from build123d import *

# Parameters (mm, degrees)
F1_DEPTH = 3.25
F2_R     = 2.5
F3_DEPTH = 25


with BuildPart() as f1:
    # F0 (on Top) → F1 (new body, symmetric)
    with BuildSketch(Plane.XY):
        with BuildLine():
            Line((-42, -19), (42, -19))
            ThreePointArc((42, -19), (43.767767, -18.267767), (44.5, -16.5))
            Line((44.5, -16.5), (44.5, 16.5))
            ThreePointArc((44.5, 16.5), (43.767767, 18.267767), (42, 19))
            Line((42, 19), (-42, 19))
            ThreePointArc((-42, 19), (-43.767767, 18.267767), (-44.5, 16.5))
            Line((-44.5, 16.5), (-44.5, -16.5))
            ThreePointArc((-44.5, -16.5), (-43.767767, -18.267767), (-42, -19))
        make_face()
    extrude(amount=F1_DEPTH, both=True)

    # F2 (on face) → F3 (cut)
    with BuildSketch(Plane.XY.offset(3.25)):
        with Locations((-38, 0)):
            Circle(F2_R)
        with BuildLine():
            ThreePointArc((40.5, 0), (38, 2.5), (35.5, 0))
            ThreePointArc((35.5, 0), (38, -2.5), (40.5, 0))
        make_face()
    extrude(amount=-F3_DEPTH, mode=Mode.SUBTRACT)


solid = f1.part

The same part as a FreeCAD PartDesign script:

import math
import FreeCAD as App
import Part
import Sketcher
from FreeCAD import Vector
Q = App.Units.Quantity

doc = App.newDocument("Part")
body = doc.addObject("PartDesign::Body", "Body")

sketch1 = doc.addObject("Sketcher::SketchObject", "Sketch")
body.addObject(sketch1)
sketch1.AttachmentSupport = (doc.XY_Plane, [""])
sketch1.MapMode = "FlatFace"
sketch1.addGeometry(Part.LineSegment(Vector(-42, -19, 0), Vector(42, -19, 0)), False)
sketch1.addGeometry(Part.ArcOfCircle(Part.Circle(Vector(42, -16.5, 0), Vector(0, 0, 1), 2.5), math.radians(-90), math.radians(0)), False)
sketch1.addGeometry(Part.LineSegment(Vector(44.5, -16.5, 0), Vector(44.5, 16.5, 0)), False)
sketch1.addGeometry(Part.ArcOfCircle(Part.Circle(Vector(42, 16.5, 0), Vector(0, 0, 1), 2.5), math.radians(0), math.radians(90)), False)
sketch1.addGeometry(Part.LineSegment(Vector(42, 19, 0), Vector(-42, 19, 0)), False)
sketch1.addGeometry(Part.ArcOfCircle(Part.Circle(Vector(-42, 16.5, 0), Vector(0, 0, 1), 2.5), math.radians(90), math.radians(180)), False)
sketch1.addGeometry(Part.LineSegment(Vector(-44.5, 16.5, 0), Vector(-44.5, -16.5, 0)), False)
sketch1.addGeometry(Part.ArcOfCircle(Part.Circle(Vector(-42, -16.5, 0), Vector(0, 0, 1), 2.5), math.radians(180), math.radians(270)), False)
sketch1.addConstraint(Sketcher.Constraint("Tangent", 0, 2, 1, 1))
sketch1.addConstraint(Sketcher.Constraint("Tangent", 1, 2, 2, 1))
sketch1.addConstraint(Sketcher.Constraint("Tangent", 2, 2, 3, 1))
sketch1.addConstraint(Sketcher.Constraint("Tangent", 3, 2, 4, 1))
sketch1.addConstraint(Sketcher.Constraint("Tangent", 4, 2, 5, 1))
sketch1.addConstraint(Sketcher.Constraint("Tangent", 5, 2, 6, 1))
sketch1.addConstraint(Sketcher.Constraint("Tangent", 6, 2, 7, 1))
sketch1.addConstraint(Sketcher.Constraint("Tangent", 7, 2, 0, 1))
sketch1.addConstraint(Sketcher.Constraint("Horizontal", 0))
sketch1.addConstraint(Sketcher.Constraint("Vertical", 2))
sketch1.addConstraint(Sketcher.Constraint("Horizontal", 4))
sketch1.addConstraint(Sketcher.Constraint("Vertical", 6))
sketch1.addConstraint(Sketcher.Constraint("Equal", 1, 3))
sketch1.addConstraint(Sketcher.Constraint("Equal", 3, 5))
sketch1.addConstraint(Sketcher.Constraint("Equal", 5, 7))
sketch1.addConstraint(Sketcher.Constraint("Symmetric", 1, 3, 5, 3, -1, 1))
sketch1.addConstraint(Sketcher.Constraint("Radius", 1, Q("2.5 mm")))
sketch1.addConstraint(Sketcher.Constraint("DistanceX", 0, 1, 0, 2, Q("84 mm")))
sketch1.addConstraint(Sketcher.Constraint("DistanceY", 2, 1, 2, 2, Q("33 mm")))
pad1 = doc.addObject("PartDesign::Pad", "Pad")
body.addObject(pad1)
pad1.Profile = sketch1
pad1.Length = 6.5
pad1.Midplane = True

sketch2 = doc.addObject("Sketcher::SketchObject", "Sketch001")
body.addObject(sketch2)
sketch2.AttachmentSupport = (doc.XY_Plane, [""])
sketch2.MapMode = "FlatFace"
sketch2.AttachmentOffset = App.Placement(Vector(0, 0, 3.25), App.Rotation())
sketch2.addGeometry(Part.Circle(Vector(-38, 0, 0), Vector(0, 0, 1), 2.5), False)
sketch2.addGeometry(Part.Circle(Vector(38, 0, 0), Vector(0, 0, 1), 2.5), False)
sketch2.addConstraint(Sketcher.Constraint("Equal", 0, 1))
sketch2.addConstraint(Sketcher.Constraint("Symmetric", 0, 3, 1, 3, -1, 1))
sketch2.addConstraint(Sketcher.Constraint("PointOnObject", 0, 3, -1))
sketch2.addConstraint(Sketcher.Constraint("Diameter", 0, Q("5 mm")))
sketch2.addConstraint(Sketcher.Constraint("DistanceX", 0, 3, -1, 1, Q("38 mm")))
pocket1 = doc.addObject("PartDesign::Pocket", "Pocket")
body.addObject(pocket1)
pocket1.Profile = sketch2
pocket1.Length = 25

doc.recompute()
